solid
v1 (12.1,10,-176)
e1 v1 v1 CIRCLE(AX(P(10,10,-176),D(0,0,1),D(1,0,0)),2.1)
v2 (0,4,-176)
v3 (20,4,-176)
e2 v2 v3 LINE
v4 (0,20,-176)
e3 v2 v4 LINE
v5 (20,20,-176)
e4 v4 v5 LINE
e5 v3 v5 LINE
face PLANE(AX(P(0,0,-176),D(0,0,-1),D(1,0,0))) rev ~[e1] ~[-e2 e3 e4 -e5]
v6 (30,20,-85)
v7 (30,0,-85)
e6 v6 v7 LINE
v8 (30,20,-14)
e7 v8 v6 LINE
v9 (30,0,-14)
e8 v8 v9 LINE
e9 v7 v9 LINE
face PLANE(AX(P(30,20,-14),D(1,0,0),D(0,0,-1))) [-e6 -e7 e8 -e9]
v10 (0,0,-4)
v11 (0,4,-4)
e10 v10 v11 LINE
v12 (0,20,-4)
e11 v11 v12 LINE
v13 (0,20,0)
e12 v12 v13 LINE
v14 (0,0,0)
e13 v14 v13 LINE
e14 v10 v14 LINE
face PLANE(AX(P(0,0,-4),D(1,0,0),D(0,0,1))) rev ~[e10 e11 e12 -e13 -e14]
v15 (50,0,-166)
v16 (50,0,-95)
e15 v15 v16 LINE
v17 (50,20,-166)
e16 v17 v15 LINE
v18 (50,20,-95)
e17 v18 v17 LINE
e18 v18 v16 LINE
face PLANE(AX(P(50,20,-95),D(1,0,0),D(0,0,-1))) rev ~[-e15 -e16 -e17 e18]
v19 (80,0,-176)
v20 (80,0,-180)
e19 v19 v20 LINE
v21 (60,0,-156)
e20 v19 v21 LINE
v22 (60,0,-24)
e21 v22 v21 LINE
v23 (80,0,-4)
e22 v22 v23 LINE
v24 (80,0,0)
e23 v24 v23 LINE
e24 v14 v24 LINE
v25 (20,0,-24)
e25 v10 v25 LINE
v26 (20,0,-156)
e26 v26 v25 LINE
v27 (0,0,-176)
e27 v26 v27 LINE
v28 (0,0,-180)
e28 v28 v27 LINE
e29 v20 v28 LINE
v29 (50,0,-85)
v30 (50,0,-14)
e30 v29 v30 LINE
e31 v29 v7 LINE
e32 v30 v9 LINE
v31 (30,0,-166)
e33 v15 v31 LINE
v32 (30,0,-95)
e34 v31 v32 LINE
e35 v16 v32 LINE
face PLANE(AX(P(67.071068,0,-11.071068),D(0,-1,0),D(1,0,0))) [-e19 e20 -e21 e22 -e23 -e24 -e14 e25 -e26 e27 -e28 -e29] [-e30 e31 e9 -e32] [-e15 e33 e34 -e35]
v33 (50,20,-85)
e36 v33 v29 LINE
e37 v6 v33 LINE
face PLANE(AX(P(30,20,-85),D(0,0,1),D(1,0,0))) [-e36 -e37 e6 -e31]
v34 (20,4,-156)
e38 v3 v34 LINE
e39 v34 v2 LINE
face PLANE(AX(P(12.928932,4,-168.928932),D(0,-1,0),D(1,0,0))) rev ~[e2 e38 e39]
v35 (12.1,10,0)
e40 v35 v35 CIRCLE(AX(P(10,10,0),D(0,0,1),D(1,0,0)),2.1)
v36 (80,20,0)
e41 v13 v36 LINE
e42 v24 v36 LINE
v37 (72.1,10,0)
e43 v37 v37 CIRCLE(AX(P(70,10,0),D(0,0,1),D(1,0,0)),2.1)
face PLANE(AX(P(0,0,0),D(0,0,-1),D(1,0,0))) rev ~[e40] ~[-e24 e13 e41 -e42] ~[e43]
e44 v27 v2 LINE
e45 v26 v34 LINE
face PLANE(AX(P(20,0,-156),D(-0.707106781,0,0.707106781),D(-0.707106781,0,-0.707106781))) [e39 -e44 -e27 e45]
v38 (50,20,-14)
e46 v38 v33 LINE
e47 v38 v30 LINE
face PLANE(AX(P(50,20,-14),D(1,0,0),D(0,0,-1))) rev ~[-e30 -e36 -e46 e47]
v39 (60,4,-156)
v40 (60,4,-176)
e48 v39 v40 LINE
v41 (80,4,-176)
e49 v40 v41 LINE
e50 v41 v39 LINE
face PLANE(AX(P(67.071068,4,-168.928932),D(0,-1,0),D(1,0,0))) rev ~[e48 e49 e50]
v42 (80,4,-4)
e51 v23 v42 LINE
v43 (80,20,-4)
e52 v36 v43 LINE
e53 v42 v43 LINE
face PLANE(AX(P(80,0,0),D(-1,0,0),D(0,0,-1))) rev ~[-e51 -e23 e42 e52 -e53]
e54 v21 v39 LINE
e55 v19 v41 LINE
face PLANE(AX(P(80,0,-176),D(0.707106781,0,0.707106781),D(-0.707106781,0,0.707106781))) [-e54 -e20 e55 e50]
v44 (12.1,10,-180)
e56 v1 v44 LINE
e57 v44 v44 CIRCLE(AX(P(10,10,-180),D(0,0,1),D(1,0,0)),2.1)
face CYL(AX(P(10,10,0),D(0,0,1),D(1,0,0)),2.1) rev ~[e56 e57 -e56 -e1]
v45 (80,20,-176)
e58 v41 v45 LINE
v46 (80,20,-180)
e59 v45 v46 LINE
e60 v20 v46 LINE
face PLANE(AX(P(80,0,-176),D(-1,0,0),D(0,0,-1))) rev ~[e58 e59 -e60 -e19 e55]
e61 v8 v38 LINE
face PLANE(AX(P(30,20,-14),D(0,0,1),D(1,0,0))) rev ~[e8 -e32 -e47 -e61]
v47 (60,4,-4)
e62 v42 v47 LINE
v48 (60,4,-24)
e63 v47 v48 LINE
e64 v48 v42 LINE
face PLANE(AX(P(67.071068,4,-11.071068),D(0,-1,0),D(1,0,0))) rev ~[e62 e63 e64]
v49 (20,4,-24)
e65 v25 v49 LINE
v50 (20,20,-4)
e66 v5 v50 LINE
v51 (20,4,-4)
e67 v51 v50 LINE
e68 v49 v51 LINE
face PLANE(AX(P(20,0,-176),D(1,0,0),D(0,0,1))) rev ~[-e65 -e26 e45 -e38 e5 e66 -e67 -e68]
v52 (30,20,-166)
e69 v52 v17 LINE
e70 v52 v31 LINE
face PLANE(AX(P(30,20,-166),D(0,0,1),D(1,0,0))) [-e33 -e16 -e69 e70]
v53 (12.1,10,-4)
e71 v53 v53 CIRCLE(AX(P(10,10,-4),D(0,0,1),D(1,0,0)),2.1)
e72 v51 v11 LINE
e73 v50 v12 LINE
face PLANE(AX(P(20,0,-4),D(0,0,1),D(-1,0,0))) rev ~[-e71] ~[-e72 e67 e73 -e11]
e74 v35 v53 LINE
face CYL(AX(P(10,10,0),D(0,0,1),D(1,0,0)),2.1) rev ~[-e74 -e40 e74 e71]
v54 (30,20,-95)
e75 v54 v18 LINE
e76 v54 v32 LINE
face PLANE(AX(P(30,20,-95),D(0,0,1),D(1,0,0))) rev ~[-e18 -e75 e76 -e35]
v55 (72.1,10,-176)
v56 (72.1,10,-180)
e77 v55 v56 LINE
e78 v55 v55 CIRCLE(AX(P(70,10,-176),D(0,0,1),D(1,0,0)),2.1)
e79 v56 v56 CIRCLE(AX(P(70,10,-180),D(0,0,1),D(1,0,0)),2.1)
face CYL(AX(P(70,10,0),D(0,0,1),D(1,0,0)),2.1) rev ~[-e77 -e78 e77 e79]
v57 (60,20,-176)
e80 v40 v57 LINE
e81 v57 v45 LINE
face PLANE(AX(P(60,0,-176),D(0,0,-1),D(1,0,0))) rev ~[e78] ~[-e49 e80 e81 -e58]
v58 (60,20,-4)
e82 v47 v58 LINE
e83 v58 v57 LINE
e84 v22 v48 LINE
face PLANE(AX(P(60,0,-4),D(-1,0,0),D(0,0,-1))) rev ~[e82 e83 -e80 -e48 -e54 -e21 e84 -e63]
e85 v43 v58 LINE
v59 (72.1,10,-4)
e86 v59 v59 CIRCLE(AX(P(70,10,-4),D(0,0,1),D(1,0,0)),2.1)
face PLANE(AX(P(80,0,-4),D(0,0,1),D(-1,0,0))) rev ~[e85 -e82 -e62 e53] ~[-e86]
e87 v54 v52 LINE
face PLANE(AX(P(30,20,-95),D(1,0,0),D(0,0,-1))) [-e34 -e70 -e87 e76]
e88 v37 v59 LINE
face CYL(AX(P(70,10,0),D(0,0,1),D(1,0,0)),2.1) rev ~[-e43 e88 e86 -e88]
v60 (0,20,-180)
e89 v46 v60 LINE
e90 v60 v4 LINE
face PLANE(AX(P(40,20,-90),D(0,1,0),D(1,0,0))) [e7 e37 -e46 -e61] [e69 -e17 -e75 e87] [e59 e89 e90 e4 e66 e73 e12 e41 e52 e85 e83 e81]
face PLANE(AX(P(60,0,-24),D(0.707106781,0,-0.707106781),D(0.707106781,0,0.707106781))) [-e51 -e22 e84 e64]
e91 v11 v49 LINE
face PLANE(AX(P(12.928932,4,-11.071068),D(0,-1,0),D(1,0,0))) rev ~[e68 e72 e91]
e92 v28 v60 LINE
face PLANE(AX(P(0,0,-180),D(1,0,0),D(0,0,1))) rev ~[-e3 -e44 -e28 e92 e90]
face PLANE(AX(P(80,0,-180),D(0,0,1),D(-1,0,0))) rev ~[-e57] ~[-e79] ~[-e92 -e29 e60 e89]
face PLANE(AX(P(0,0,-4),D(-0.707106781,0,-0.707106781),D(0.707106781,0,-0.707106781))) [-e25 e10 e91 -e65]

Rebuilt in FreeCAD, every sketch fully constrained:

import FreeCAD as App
import Part
import Sketcher


def add_polygon(sketch, points):
    """Adds a closed chain of lines whose ends are joined by coincident constraints."""
    first, n = sketch.GeometryCount, len(points)
    for a, b in zip(points, points[1:] + points[:1]):
        sketch.addGeometry(Part.LineSegment(App.Vector(*a, 0), App.Vector(*b, 0)), False)
    for i in range(n):
        sketch.addConstraint(Sketcher.Constraint("Coincident", first + i, 2, first + (i + 1) % n, 1))

doc = App.newDocument("Part")
body = doc.addObject("PartDesign::Body", "Body")

sketch1 = body.newObject("Sketcher::SketchObject", "Sketch")
sketch1.AttachmentSupport = (doc.getObject("XZ_Plane"), [""])
sketch1.MapMode = "FlatFace"
add_polygon(sketch1, [(20, -176), (20, -4), (0, -4), (0, 0), (80, 0), (80, -4), (60, -4), (60, -176), (80, -176), (80, -180), (0, -180), (0, -176)])
sketch1.addConstraint([
    Sketcher.Constraint("Vertical", 0),
    Sketcher.Constraint("Horizontal", 1),
    Sketcher.Constraint("Vertical", 2),
    Sketcher.Constraint("Horizontal", 3),
    Sketcher.Constraint("Vertical", 4),
    Sketcher.Constraint("Horizontal", 5),
    Sketcher.Constraint("Vertical", 6),
    Sketcher.Constraint("Horizontal", 7),
    Sketcher.Constraint("Vertical", 8),
    Sketcher.Constraint("Horizontal", 9),
    Sketcher.Constraint("Vertical", 10),
    Sketcher.Constraint("Horizontal", 11),
    Sketcher.Constraint("Coincident", 2, 2, -1, 1),
    Sketcher.Constraint("PointOnObject", 9, 2, -2),
    Sketcher.Constraint("Horizontal", 1, 2, 4, 2),
    Sketcher.Constraint("Horizontal", 7, 2, 10, 2),
    Sketcher.Constraint("Vertical", 4, 2, 7, 2),
    Sketcher.Constraint("Equal", 1, 5),
    Sketcher.Constraint("Equal", 4, 8),
    Sketcher.Constraint("DistanceX", 1, 2, 1, 1, 20.0),
    Sketcher.Constraint("DistanceX", 3, 1, 3, 2, 80.0),
    Sketcher.Constraint("DistanceY", 0, 1, 0, 2, 172.0),
    Sketcher.Constraint("DistanceY", 2, 1, 2, 2, 4.0),
])
pad1 = body.newObject("PartDesign::Pad", "Pad")
pad1.Profile = sketch1
pad1.Length = 20
pad1.Reversed = True

sketch2 = body.newObject("Sketcher::SketchObject", "Sketch001")
sketch2.AttachmentSupport = (doc.getObject("XZ_Plane"), [""])
sketch2.MapMode = "FlatFace"
add_polygon(sketch2, [(60, -4), (60, -24), (80, -4)])
add_polygon(sketch2, [(0, -4), (20, -24), (20, -4)])
add_polygon(sketch2, [(0, -176), (20, -176), (20, -156)])
add_polygon(sketch2, [(60, -176), (80, -176), (60, -156)])
sketch2.addConstraint([
    Sketcher.Constraint("Vertical", 0),
    Sketcher.Constraint("Horizontal", 2),
    Sketcher.Constraint("Vertical", 4),
    Sketcher.Constraint("Horizontal", 5),
    Sketcher.Constraint("Horizontal", 6),
    Sketcher.Constraint("Vertical", 7),
    Sketcher.Constraint("Horizontal", 9),
    Sketcher.Constraint("Vertical", 11),
    Sketcher.Constraint("PointOnObject", 5, 2, -2),
    Sketcher.Constraint("PointOnObject", 8, 2, -2),
    Sketcher.Constraint("Perpendicular", 1, 3),
    Sketcher.Constraint("Perpendicular", 3, 8),
    Sketcher.Constraint("Perpendicular", 8, 10),
    Sketcher.Constraint("Horizontal", 0, 2, 3, 2),
    Sketcher.Constraint("Horizontal", 2, 2, 4, 2),
    Sketcher.Constraint("Horizontal", 8, 2, 9, 2),
    Sketcher.Constraint("Horizontal", 7, 2, 10, 2),
    Sketcher.Constraint("Vertical", 4, 2, 6, 2),
    Sketcher.Constraint("Vertical", 1, 2, 9, 2),
    Sketcher.Constraint("Vertical", 2, 2, 10, 2),
    Sketcher.Constraint("DistanceX", 2, 2, 2, 1, 20.0),
    Sketcher.Constraint("DistanceX", -1, 1, 0, 2, 60.0),
    Sketcher.Constraint("DistanceY", 0, 2, -1, 1, 24.0),
    Sketcher.Constraint("DistanceY", 6, 2, -1, 1, 176.0),
])
pad2 = body.newObject("PartDesign::Pad", "Pad001")
pad2.Profile = sketch2
pad2.Length = 4
pad2.Reversed = True

sketch3 = body.newObject("Sketcher::SketchObject", "Sketch002")
sketch3.AttachmentSupport = (doc.getObject("XZ_Plane"), [""])
sketch3.MapMode = "FlatFace"
sketch3.AttachmentOffset = App.Placement(App.Vector(0, 0, -20), App.Rotation())
add_polygon(sketch3, [(30, -85), (30, -14), (50, -14), (50, -85)])
add_polygon(sketch3, [(30, -166), (30, -95), (50, -95), (50, -166)])
sketch3.addConstraint([
    Sketcher.Constraint("Vertical", 0),
    Sketcher.Constraint("Horizontal", 1),
    Sketcher.Constraint("Vertical", 2),
    Sketcher.Constraint("Horizontal", 3),
    Sketcher.Constraint("Vertical", 4),
    Sketcher.Constraint("Horizontal", 5),
    Sketcher.Constraint("Vertical", 6),
    Sketcher.Constraint("Horizontal", 7),
    Sketcher.Constraint("Vertical", 3, 2, 4, 2),
    Sketcher.Constraint("Vertical", 2, 2, 5, 2),
    Sketcher.Constraint("Equal", 2, 4),
    Sketcher.Constraint("DistanceX", 1, 1, 1, 2, 20.0),
    Sketcher.Constraint("DistanceY", 0, 1, 0, 2, 71.0),
    Sketcher.Constraint("DistanceX", -1, 1, 0, 2, 30.0),
    Sketcher.Constraint("DistanceY", 0, 2, -1, 1, 14.0),
    Sketcher.Constraint("DistanceY", 4, 2, -1, 1, 95.0),
])
pocket1 = body.newObject("PartDesign::Pocket", "Pocket")
pocket1.Profile = sketch3
pocket1.Length = 55
pocket1.Reversed = True

sketch4 = body.newObject("Sketcher::SketchObject", "Sketch003")
sketch4.AttachmentSupport = (doc.getObject("XY_Plane"), [""])
sketch4.MapMode = "FlatFace"
sketch4.addGeometry([
    Part.Circle(App.Vector(10, 10, 0), App.Vector(0, 0, 1), 2.1),
    Part.Circle(App.Vector(70, 10, 0), App.Vector(0, 0, 1), 2.1),
], False)
sketch4.addConstraint([
    Sketcher.Constraint("Equal", 0, 1),
    Sketcher.Constraint("Horizontal", 0, 3, 1, 3),
    Sketcher.Constraint("Diameter", 0, 4.2),
    Sketcher.Constraint("DistanceX", -1, 1, 0, 3, 10.0),
    Sketcher.Constraint("DistanceY", -1, 1, 0, 3, 10.0),
    Sketcher.Constraint("DistanceX", -1, 1, 1, 3, 70.0),
])
pocket2 = body.newObject("PartDesign::Pocket", "Pocket001")
pocket2.Profile = sketch4
pocket2.Length = 207

doc.recompute()
